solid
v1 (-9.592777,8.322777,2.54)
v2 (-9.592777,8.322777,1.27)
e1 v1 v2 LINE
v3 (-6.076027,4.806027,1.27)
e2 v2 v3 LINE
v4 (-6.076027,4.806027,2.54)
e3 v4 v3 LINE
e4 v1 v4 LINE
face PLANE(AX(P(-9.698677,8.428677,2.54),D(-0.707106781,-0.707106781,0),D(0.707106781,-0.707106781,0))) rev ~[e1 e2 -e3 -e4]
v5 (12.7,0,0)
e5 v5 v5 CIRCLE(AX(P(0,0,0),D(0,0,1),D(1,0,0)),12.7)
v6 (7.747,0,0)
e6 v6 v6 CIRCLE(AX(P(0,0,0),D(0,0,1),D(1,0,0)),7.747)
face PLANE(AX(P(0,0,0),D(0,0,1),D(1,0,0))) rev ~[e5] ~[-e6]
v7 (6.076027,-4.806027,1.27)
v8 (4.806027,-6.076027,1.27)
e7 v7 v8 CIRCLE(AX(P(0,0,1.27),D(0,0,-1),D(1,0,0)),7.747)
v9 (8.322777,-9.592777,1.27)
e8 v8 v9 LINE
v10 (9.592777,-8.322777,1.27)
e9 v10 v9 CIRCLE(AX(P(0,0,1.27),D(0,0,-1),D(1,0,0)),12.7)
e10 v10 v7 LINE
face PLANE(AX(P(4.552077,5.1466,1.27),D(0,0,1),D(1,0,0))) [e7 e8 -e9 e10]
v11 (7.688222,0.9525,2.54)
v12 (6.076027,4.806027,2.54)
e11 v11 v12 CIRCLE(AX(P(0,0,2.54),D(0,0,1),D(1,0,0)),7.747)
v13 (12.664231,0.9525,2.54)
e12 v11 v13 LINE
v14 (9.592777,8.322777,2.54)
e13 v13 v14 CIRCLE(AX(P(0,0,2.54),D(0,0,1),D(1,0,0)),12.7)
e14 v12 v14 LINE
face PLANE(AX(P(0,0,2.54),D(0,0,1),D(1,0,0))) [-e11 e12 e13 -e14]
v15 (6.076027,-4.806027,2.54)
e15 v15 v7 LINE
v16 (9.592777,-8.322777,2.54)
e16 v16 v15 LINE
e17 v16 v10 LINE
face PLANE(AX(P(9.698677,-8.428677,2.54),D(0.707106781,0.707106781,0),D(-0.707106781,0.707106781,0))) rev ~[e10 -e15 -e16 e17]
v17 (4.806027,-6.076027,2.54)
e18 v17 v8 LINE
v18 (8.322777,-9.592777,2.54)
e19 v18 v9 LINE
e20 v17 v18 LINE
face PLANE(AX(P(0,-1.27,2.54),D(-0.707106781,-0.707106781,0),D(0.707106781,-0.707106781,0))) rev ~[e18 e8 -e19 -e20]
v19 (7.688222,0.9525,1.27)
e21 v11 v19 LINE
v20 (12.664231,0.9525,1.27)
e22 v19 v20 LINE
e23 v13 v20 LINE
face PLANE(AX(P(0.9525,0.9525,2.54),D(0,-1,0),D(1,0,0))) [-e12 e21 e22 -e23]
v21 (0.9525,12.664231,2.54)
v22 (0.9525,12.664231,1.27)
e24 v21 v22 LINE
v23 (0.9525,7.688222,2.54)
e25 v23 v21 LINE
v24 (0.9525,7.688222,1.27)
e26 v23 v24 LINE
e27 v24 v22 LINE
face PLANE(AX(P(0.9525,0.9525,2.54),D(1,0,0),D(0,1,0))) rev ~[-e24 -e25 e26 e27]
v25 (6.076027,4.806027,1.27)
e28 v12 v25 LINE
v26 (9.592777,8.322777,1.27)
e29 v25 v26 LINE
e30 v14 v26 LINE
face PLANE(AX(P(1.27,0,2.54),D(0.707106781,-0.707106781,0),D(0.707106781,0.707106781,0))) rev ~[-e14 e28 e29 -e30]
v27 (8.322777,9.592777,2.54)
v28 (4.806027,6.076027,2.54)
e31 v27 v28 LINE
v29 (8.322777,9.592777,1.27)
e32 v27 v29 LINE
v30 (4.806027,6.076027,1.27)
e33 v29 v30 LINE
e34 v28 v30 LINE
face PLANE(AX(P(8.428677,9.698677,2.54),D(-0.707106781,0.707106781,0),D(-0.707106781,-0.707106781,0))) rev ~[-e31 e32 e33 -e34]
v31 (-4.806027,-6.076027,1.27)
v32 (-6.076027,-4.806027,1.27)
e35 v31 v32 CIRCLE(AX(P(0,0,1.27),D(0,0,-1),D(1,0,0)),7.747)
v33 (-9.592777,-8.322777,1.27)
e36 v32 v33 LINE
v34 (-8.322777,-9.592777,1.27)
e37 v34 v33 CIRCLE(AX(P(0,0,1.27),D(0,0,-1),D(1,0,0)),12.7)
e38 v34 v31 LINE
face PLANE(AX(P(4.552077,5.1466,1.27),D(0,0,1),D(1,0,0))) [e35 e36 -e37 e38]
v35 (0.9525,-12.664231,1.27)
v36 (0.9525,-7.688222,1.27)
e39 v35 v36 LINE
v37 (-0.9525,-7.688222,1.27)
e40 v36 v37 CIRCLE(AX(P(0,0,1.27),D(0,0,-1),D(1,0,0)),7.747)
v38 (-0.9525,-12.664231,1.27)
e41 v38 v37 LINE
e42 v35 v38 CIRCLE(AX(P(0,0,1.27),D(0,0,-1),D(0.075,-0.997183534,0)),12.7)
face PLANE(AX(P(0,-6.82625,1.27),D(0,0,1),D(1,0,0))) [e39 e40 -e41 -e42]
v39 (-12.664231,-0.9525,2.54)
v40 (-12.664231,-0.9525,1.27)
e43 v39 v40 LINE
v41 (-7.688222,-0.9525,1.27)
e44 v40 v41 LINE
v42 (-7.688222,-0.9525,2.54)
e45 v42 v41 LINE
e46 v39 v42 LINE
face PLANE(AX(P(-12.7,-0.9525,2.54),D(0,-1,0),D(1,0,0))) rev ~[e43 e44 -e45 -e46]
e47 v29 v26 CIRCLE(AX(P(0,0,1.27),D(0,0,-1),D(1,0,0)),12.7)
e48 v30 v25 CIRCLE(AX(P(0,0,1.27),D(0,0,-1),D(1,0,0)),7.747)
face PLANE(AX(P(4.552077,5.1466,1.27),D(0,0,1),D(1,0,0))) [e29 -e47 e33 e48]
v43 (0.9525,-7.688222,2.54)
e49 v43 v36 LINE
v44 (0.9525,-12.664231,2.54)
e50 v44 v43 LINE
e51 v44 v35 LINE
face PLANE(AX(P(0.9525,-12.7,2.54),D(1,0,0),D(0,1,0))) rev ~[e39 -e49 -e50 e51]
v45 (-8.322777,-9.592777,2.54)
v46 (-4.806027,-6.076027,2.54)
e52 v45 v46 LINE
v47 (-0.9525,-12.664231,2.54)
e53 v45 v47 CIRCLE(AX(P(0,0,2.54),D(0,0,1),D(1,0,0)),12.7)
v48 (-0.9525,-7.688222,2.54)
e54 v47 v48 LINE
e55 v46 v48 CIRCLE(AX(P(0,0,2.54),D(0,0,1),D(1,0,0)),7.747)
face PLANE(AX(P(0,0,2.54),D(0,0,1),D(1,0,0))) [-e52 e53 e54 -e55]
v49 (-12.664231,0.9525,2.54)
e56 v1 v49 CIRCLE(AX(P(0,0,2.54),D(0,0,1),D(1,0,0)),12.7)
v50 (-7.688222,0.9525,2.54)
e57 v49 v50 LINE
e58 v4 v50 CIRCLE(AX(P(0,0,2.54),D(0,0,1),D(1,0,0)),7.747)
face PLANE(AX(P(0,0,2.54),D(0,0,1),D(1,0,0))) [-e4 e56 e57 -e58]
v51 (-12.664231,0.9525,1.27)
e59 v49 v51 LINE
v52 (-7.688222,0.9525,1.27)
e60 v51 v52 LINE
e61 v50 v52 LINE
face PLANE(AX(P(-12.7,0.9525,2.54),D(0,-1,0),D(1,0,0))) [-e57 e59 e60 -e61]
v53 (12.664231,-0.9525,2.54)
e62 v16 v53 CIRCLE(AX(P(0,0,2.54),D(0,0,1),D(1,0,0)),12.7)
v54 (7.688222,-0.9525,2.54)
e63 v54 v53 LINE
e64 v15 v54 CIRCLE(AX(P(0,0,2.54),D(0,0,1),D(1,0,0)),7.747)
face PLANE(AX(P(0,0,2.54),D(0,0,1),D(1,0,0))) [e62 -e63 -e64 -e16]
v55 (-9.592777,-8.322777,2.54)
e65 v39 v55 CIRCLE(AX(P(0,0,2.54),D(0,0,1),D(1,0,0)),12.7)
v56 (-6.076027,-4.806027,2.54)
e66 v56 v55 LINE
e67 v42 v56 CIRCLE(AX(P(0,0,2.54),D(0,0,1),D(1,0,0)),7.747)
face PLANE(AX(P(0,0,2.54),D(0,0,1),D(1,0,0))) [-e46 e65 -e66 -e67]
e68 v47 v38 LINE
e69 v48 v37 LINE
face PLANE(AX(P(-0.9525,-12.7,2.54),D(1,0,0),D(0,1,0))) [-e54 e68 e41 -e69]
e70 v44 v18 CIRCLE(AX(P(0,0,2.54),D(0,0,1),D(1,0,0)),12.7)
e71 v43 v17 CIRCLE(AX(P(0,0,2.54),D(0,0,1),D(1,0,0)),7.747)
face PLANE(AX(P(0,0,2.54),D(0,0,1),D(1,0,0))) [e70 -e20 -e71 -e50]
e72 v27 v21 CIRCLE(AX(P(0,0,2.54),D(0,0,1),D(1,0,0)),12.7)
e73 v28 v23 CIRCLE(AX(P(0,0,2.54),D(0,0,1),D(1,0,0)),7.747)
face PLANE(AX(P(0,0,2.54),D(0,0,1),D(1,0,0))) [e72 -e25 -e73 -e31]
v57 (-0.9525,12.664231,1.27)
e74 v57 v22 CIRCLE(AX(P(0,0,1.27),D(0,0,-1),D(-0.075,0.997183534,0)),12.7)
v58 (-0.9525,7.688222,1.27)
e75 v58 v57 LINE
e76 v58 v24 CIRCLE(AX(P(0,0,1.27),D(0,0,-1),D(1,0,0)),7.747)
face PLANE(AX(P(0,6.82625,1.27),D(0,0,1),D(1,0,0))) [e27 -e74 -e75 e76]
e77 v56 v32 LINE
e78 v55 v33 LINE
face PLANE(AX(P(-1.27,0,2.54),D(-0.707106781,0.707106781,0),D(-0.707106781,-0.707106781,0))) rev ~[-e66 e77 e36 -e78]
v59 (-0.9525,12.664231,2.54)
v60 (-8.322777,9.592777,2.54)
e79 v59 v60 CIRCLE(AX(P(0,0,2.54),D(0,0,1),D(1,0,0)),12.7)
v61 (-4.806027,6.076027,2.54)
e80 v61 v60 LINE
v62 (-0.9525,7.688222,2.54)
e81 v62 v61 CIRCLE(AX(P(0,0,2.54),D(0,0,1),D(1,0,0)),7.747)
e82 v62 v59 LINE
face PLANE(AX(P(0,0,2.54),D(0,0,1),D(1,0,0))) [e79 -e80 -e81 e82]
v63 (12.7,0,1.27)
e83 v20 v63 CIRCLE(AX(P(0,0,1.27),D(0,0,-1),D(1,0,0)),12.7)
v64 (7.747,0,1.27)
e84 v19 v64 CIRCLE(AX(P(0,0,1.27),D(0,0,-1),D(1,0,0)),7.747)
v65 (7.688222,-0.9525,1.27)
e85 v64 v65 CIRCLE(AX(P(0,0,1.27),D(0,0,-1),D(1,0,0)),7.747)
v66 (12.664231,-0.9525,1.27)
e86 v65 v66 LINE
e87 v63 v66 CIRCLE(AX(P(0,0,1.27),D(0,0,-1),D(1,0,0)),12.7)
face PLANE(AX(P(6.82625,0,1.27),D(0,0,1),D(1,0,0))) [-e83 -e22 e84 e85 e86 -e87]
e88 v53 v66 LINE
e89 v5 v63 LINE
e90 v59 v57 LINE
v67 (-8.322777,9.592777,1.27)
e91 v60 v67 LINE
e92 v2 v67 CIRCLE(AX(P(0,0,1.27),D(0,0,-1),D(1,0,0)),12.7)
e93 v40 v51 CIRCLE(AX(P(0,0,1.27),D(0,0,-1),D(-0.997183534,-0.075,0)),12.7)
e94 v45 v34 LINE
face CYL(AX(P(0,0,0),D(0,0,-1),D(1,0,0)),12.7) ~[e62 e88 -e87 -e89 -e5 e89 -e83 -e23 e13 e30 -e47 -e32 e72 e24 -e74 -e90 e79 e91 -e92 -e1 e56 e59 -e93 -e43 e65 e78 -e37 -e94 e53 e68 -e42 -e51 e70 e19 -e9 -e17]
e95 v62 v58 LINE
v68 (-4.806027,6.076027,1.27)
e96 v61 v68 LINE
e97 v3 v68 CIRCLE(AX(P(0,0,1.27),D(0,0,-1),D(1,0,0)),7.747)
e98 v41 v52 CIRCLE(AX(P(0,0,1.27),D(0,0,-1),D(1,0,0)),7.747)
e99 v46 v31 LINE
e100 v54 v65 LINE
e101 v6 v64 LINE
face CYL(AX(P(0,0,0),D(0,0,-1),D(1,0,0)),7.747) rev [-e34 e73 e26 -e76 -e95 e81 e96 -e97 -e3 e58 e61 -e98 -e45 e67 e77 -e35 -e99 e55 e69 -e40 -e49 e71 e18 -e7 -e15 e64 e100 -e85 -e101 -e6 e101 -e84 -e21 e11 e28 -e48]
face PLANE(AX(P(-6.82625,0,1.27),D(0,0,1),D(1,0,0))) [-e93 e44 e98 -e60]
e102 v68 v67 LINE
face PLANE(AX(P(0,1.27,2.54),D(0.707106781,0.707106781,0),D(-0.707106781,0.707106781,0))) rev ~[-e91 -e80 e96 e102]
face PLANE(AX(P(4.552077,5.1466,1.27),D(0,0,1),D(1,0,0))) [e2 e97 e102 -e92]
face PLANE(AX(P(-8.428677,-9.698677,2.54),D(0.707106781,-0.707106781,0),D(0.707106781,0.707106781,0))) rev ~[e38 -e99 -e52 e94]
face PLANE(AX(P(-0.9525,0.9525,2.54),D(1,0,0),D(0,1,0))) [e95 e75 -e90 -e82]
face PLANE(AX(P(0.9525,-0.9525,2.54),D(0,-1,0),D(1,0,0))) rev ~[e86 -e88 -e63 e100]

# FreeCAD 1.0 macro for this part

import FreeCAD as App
import Part
import Sketcher
from FreeCAD import Vector
Q = App.Units.Quantity

doc = App.newDocument("Part")
body = doc.addObject("PartDesign::Body", "Body")

# Sketch on XY plane
sketch1 = body.newObject("Sketcher::SketchObject", "Sketch")
sketch1.AttachmentSupport = (doc.getObject("XY_Plane"), [""])
sketch1.MapMode = "FlatFace"
sketch1.addGeometry([
    Part.Circle(Vector(0, 0, 0), Vector(0, 0, 1), 12.7),
    Part.Circle(Vector(0, 0, 0), Vector(0, 0, 1), 7.747),
], False)
sketch1.addConstraint([
    Sketcher.Constraint("Coincident", 0, 3, -1, 1),
    Sketcher.Constraint("Coincident", 1, 3, -1, 1),
    Sketcher.Constraint("Diameter", 0, Q("1 in")),
    Sketcher.Constraint("Diameter", 1, Q("0.61 in")),
])
pad1 = body.newObject("PartDesign::Pad", "Pad")
pad1.Profile = sketch1
pad1.Length = Q("0.1 in")

# Sketch on XY plane
sketch2 = body.newObject("Sketcher::SketchObject", "Sketch001")
sketch2.AttachmentSupport = (doc.getObject("XY_Plane"), [""])
sketch2.MapMode = "FlatFace"
sketch2.AttachmentOffset = App.Placement(Vector(0, 0, 0.1 * 25.4), App.Rotation())
sketch2.addGeometry([
    Part.LineSegment(Vector(9.698677, -9.698677, 0), Vector(9.698677, -8.428677, 0)),  # 0
    Part.LineSegment(Vector(9.698677, -8.428677, 0), Vector(1.27, 0, 0)),  # 1
    Part.LineSegment(Vector(1.27, 0, 0), Vector(9.698677, 8.428677, 0)),  # 2
    Part.LineSegment(Vector(9.698677, 8.428677, 0), Vector(9.698677, 9.698677, 0)),  # 3
    Part.LineSegment(Vector(9.698677, 9.698677, 0), Vector(8.428677, 9.698677, 0)),  # 4
    Part.LineSegment(Vector(8.428677, 9.698677, 0), Vector(0, 1.27, 0)),  # 5
    Part.LineSegment(Vector(0, 1.27, 0), Vector(-8.428677, 9.698677, 0)),  # 6
    Part.LineSegment(Vector(-8.428677, 9.698677, 0), Vector(-9.698677, 9.698677, 0)),  # 7
    Part.LineSegment(Vector(-9.698677, 9.698677, 0), Vector(-9.698677, 8.428677, 0)),  # 8
    Part.LineSegment(Vector(-9.698677, 8.428677, 0), Vector(-1.27, 0, 0)),  # 9
    Part.LineSegment(Vector(-1.27, 0, 0), Vector(-9.698677, -8.428677, 0)),  # 10
    Part.LineSegment(Vector(-9.698677, -8.428677, 0), Vector(-9.698677, -9.698677, 0)),  # 11
    Part.LineSegment(Vector(-9.698677, -9.698677, 0), Vector(-8.428677, -9.698677, 0)),  # 12
    Part.LineSegment(Vector(-8.428677, -9.698677, 0), Vector(0, -1.27, 0)),  # 13
    Part.LineSegment(Vector(0, -1.27, 0), Vector(8.428677, -9.698677, 0)),  # 14
    Part.LineSegment(Vector(8.428677, -9.698677, 0), Vector(9.698677, -9.698677, 0)),  # 15
], False)
sketch2.addConstraint([
    Sketcher.Constraint("Coincident", 0, 2, 1, 1),
    Sketcher.Constraint("Coincident", 1, 2, 2, 1),
    Sketcher.Constraint("Coincident", 2, 2, 3, 1),
    Sketcher.Constraint("Coincident", 3, 2, 4, 1),
    Sketcher.Constraint("Coincident", 4, 2, 5, 1),
    Sketcher.Constraint("Coincident", 5, 2, 6, 1),
    Sketcher.Constraint("Coincident", 6, 2, 7, 1),
    Sketcher.Constraint("Coincident", 7, 2, 8, 1),
    Sketcher.Constraint("Coincident", 8, 2, 9, 1),
    Sketcher.Constraint("Coincident", 9, 2, 10, 1),
    Sketcher.Constraint("Coincident", 10, 2, 11, 1),
    Sketcher.Constraint("Coincident", 11, 2, 12, 1),
    Sketcher.Constraint("Coincident", 12, 2, 13, 1),
    Sketcher.Constraint("Coincident", 13, 2, 14, 1),
    Sketcher.Constraint("Coincident", 14, 2, 15, 1),
    Sketcher.Constraint("Coincident", 15, 2, 0, 1),
    Sketcher.Constraint("Vertical", 0),
    Sketcher.Constraint("Vertical", 3),
    Sketcher.Constraint("Horizontal", 4),
    Sketcher.Constraint("Horizontal", 7),
    Sketcher.Constraint("Vertical", 8),
    Sketcher.Constraint("Vertical", 11),
    Sketcher.Constraint("Horizontal", 12),
    Sketcher.Constraint("Horizontal", 15),
    Sketcher.Constraint("Symmetric", 0, 2, 8, 2, -1, 1),
    Sketcher.Constraint("Symmetric", 1, 2, 9, 2, -1, 1),
    Sketcher.Constraint("Symmetric", 2, 2, 10, 2, -1, 1),
    Sketcher.Constraint("Symmetric", 4, 2, 12, 2, -1, 1),
    Sketcher.Constraint("Symmetric", 5, 2, 13, 2, -1, 1),
    Sketcher.Constraint("Symmetric", 6, 2, 14, 2, -1, 1),
    Sketcher.Constraint("Symmetric", 4, 2, 6, 2, -2),
    Sketcher.Constraint("Symmetric", 2, 2, 8, 2, -2),
    Sketcher.Constraint("PointOnObject", 1, 2, -1),
    Sketcher.Constraint("PointOnObject", 5, 2, -2),
    Sketcher.Constraint("Perpendicular", 1, 2),
    Sketcher.Constraint("Parallel", 2, 5),
    Sketcher.Constraint("Equal", 15, 0),
    Sketcher.Constraint("Equal", 2, 5),
    Sketcher.Constraint("DistanceX", 4, 2, 4, 1, Q("0.05 in")),
    Sketcher.Constraint("Distance", 1, Q("11.919949 mm")),
])
pocket1 = body.newObject("PartDesign::Pocket", "Pocket")
pocket1.Profile = sketch2
pocket1.Length = Q("0.05 in")

# Sketch on XY plane
sketch3 = body.newObject("Sketcher::SketchObject", "Sketch002")
sketch3.AttachmentSupport = (doc.getObject("XY_Plane"), [""])
sketch3.MapMode = "FlatFace"
sketch3.AttachmentOffset = App.Placement(Vector(0, 0, 0.1 * 25.4), App.Rotation())
sketch3.addGeometry([
    Part.LineSegment(Vector(-0.9525, -0.9525, 0), Vector(-0.9525, -12.7, 0)),  # 0
    Part.LineSegment(Vector(-0.9525, -12.7, 0), Vector(0.9525, -12.7, 0)),  # 1
    Part.LineSegment(Vector(0.9525, -12.7, 0), Vector(0.9525, -0.9525, 0)),  # 2
    Part.LineSegment(Vector(0.9525, -0.9525, 0), Vector(-0.9525, -0.9525, 0)),  # 3
    Part.LineSegment(Vector(0.9525, 0.9525, 0), Vector(0.9525, -0.9525, 0)),  # 4
    Part.LineSegment(Vector(0.9525, -0.9525, 0), Vector(12.7, -0.9525, 0)),  # 5
    Part.LineSegment(Vector(12.7, -0.9525, 0), Vector(12.7, 0.9525, 0)),  # 6
    Part.LineSegment(Vector(12.7, 0.9525, 0), Vector(0.9525, 0.9525, 0)),  # 7
    Part.LineSegment(Vector(-12.7, 0.9525, 0), Vector(-12.7, -0.9525, 0)),  # 8
    Part.LineSegment(Vector(-12.7, -0.9525, 0), Vector(-0.9525, -0.9525, 0)),  # 9
    Part.LineSegment(Vector(-0.9525, -0.9525, 0), Vector(-0.9525, 0.9525, 0)),  # 10
    Part.LineSegment(Vector(-0.9525, 0.9525, 0), Vector(-12.7, 0.9525, 0)),  # 11
    Part.LineSegment(Vector(-0.9525, 12.7, 0), Vector(-0.9525, 0.9525, 0)),  # 12
    Part.LineSegment(Vector(-0.9525, 0.9525, 0), Vector(0.9525, 0.9525, 0)),  # 13
    Part.LineSegment(Vector(0.9525, 0.9525, 0), Vector(0.9525, 12.7, 0)),  # 14
    Part.LineSegment(Vector(0.9525, 12.7, 0), Vector(-0.9525, 12.7, 0)),  # 15
], False)
sketch3.addConstraint([
    Sketcher.Constraint("Coincident", 0, 2, 1, 1),
    Sketcher.Constraint("Coincident", 1, 2, 2, 1),
    Sketcher.Constraint("Coincident", 2, 2, 3, 1),
    Sketcher.Constraint("Coincident", 3, 2, 0, 1),
    Sketcher.Constraint("Coincident", 4, 2, 5, 1),
    Sketcher.Constraint("Coincident", 5, 2, 6, 1),
    Sketcher.Constraint("Coincident", 6, 2, 7, 1),
    Sketcher.Constraint("Coincident", 7, 2, 4, 1),
    Sketcher.Constraint("Coincident", 8, 2, 9, 1),
    Sketcher.Constraint("Coincident", 9, 2, 10, 1),
    Sketcher.Constraint("Coincident", 10, 2, 11, 1),
    Sketcher.Constraint("Coincident", 11, 2, 8, 1),
    Sketcher.Constraint("Coincident", 12, 2, 13, 1),
    Sketcher.Constraint("Coincident", 13, 2, 14, 1),
    Sketcher.Constraint("Coincident", 14, 2, 15, 1),
    Sketcher.Constraint("Coincident", 15, 2, 12, 1),
    Sketcher.Constraint("Vertical", 0),
    Sketcher.Constraint("Horizontal", 1),
    Sketcher.Constraint("Vertical", 2),
    Sketcher.Constraint("Horizontal", 3),
    Sketcher.Constraint("Vertical", 4),
    Sketcher.Constraint("Horizontal", 5),
    Sketcher.Constraint("Vertical", 6),
    Sketcher.Constraint("Horizontal", 7),
    Sketcher.Constraint("Vertical", 8),
    Sketcher.Constraint("Horizontal", 9),
    Sketcher.Constraint("Vertical", 10),
    Sketcher.Constraint("Horizontal", 11),
    Sketcher.Constraint("Vertical", 12),
    Sketcher.Constraint("Horizontal", 13),
    Sketcher.Constraint("Vertical", 14),
    Sketcher.Constraint("Horizontal", 15),
    Sketcher.Constraint("Coincident", 4, 2, 2, 2),
    Sketcher.Constraint("Coincident", 9, 2, 3, 2),
    Sketcher.Constraint("Coincident", 12, 2, 10, 2),
    Sketcher.Constraint("Coincident", 13, 2, 7, 2),
    Sketcher.Constraint("Symmetric", 3, 2, 7, 2, -1, 1),
    Sketcher.Constraint("Equal", 7, 9),
    Sketcher.Constraint("Equal", 11, 0),
    Sketcher.Constraint("Equal", 15, 4),
    Sketcher.Constraint("Equal", 2, 12),
    Sketcher.Constraint("DistanceY", 0, 2, -1, 1, Q("0.5 in")),
    Sketcher.Constraint("DistanceX", 1, 1, 1, 2, Q("0.075 in")),
])
pocket2 = body.newObject("PartDesign::Pocket", "Pocket001")
pocket2.Profile = sketch3
pocket2.Length = Q("0.05 in")

doc.recompute()
